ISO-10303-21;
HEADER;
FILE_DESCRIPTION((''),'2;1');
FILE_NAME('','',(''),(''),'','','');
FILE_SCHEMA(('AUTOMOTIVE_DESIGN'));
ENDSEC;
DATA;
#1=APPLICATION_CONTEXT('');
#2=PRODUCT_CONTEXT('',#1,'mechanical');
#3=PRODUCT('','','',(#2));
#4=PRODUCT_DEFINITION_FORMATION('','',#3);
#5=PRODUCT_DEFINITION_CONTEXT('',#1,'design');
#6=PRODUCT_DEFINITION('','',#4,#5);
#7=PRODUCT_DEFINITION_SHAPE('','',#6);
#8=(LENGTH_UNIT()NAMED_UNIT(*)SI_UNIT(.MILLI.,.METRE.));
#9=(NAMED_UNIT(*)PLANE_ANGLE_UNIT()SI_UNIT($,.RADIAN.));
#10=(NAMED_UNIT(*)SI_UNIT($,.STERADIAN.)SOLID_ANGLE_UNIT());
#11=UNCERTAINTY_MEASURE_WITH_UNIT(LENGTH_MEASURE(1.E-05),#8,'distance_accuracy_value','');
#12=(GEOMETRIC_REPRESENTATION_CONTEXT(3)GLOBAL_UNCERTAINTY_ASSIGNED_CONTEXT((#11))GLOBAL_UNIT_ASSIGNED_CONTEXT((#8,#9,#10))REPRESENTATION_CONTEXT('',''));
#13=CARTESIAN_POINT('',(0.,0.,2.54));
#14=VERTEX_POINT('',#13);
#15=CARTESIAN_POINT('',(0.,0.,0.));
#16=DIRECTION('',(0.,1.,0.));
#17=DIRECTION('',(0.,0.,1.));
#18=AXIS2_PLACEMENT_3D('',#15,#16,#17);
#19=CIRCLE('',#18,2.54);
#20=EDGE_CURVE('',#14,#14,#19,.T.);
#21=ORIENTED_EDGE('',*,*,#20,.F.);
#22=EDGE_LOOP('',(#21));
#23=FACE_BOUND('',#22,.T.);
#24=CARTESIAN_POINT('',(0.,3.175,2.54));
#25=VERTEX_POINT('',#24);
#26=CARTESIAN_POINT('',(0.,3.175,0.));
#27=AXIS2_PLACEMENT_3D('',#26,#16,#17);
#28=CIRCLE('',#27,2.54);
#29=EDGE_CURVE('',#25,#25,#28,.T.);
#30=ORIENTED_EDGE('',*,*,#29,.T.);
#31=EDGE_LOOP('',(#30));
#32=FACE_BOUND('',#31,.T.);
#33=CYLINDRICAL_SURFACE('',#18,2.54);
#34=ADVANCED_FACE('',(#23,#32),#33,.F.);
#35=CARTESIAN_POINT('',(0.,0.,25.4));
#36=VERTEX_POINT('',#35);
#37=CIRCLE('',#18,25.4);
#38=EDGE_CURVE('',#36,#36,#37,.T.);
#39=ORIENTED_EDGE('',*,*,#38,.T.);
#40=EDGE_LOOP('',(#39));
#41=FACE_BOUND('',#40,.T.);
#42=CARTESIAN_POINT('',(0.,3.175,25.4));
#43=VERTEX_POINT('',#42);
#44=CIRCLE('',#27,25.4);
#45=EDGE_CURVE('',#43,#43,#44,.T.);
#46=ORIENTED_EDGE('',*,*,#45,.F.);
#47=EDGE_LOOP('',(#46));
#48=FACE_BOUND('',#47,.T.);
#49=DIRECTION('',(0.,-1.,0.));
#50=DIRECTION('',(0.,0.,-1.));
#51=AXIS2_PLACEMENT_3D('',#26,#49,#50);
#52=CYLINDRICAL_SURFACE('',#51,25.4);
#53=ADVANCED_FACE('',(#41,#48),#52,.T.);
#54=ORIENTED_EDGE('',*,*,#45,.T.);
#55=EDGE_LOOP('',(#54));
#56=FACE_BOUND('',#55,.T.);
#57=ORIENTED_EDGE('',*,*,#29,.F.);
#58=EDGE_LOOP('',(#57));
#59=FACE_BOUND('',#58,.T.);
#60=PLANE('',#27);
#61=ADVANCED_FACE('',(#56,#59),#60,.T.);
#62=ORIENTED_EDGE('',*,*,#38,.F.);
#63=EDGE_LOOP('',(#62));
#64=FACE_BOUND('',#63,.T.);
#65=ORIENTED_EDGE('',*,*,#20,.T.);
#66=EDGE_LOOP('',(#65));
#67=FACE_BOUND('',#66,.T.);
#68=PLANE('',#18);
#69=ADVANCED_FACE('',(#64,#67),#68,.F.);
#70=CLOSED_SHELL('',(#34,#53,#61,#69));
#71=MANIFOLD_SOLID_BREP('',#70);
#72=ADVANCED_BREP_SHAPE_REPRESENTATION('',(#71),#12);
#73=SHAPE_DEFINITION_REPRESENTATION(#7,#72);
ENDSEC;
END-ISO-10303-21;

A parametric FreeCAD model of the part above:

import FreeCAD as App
import Part
import Sketcher
Q = App.Units.Quantity

doc = App.newDocument("Part")
body = doc.addObject("PartDesign::Body", "Body")

# Sketch on XZ plane
sketch1 = doc.addObject("Sketcher::SketchObject", "Sketch")
body.addObject(sketch1)
sketch1.AttachmentSupport = (doc.XZ_Plane, [""])
sketch1.MapMode = "FlatFace"
sketch1.addGeometry(Part.Circle(App.Vector(0, 0, 0), App.Vector(0, 0, 1), 25), False)
sketch1.addConstraint(Sketcher.Constraint("Coincident", 0, 3, -1, 1))
sketch1.addConstraint(Sketcher.Constraint("Diameter", 0, Q("2 in")))
pad1 = doc.addObject("PartDesign::Pad", "Pad")
body.addObject(pad1)
pad1.Profile = sketch1
pad1.Length = Q("0.125 in")
pad1.Reversed = True

# Sketch on XZ plane
sketch2 = doc.addObject("Sketcher::SketchObject", "Sketch001")
body.addObject(sketch2)
sketch2.AttachmentSupport = (doc.XZ_Plane, [""])
sketch2.MapMode = "FlatFace"
sketch2.AttachmentOffset = App.Placement(App.Vector(0, 0, -0.125 * 25.4), App.Rotation())
sketch2.addGeometry(Part.Circle(App.Vector(0, 0, 0), App.Vector(0, 0, 1), 2.5), False)
sketch2.addConstraint(Sketcher.Constraint("Coincident", 0, 3, -1, 1))
sketch2.addConstraint(Sketcher.Constraint("Diameter", 0, Q("0.2 in")))
pocket1 = doc.addObject("PartDesign::Pocket", "Pocket")
body.addObject(pocket1)
pocket1.Profile = sketch2
pocket1.Length = Q("0.125 in")
pocket1.Reversed = True

doc.recompute()
